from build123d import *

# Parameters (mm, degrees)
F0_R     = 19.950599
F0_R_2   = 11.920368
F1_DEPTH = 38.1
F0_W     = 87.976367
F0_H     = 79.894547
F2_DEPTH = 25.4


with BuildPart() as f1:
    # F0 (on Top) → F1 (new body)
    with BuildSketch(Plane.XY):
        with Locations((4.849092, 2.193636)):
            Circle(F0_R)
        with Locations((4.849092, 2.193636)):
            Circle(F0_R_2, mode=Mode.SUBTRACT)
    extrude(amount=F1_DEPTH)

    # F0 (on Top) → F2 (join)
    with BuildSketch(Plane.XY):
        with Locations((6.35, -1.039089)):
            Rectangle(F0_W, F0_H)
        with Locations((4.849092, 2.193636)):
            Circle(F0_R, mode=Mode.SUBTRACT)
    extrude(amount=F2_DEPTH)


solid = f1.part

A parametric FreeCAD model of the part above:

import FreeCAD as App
import Part
import Sketcher
from FreeCAD import Vector
Q = App.Units.Quantity


def add_polygon(sketch, points):
    """Adds a closed chain of lines whose ends are joined by coincident constraints."""
    first, n = sketch.GeometryCount, len(points)
    for a, b in zip(points, points[1:] + points[:1]):
        sketch.addGeometry(Part.LineSegment(App.Vector(*a, 0), App.Vector(*b, 0)), False)
    for i in range(n):
        sketch.addConstraint(Sketcher.Constraint("Coincident", first + i, 2, first + (i + 1) % n, 1))

doc = App.newDocument("Part")
body = doc.addObject("PartDesign::Body", "Body")

sketch1 = body.newObject("Sketcher::SketchObject", "Sketch")
sketch1.AttachmentSupport = (doc.getObject("XY_Plane"), [""])
sketch1.MapMode = "FlatFace"
sketch1.addGeometry(Part.Circle(Vector(5, 2, 0), Vector(0, 0, 1), 20), False)
sketch1.addGeometry(Part.Circle(Vector(5, 2, 0), Vector(0, 0, 1), 12), False)
sketch1.addConstraint(Sketcher.Constraint("Coincident", 1, 3, 0, 3))
sketch1.addConstraint(Sketcher.Constraint("Diameter", 0, Q("39.901198 mm")))
sketch1.addConstraint(Sketcher.Constraint("Diameter", 1, Q("23.840736 mm")))
sketch1.addConstraint(Sketcher.Constraint("DistanceX", -1, 1, 0, 3, Q("4.849092 mm")))
sketch1.addConstraint(Sketcher.Constraint("DistanceY", -1, 1, 0, 3, Q("2.193636 mm")))
pad1 = body.newObject("PartDesign::Pad", "Pad")
pad1.Profile = sketch1
pad1.Length = Q("1.5 in")

sketch2 = body.newObject("Sketcher::SketchObject", "Sketch001")
sketch2.AttachmentSupport = (doc.getObject("XY_Plane"), [""])
sketch2.MapMode = "FlatFace"
add_polygon(sketch2, [(-38, 39), (-38, -41), (50, -41), (50, 39)])
sketch2.addGeometry(Part.Circle(Vector(5, 2, 0), Vector(0, 0, 1), 20), False)
sketch2.addConstraint(Sketcher.Constraint("Vertical", 0))
sketch2.addConstraint(Sketcher.Constraint("Horizontal", 1))
sketch2.addConstraint(Sketcher.Constraint("Vertical", 2))
sketch2.addConstraint(Sketcher.Constraint("Horizontal", 3))
sketch2.addConstraint(Sketcher.Constraint("DistanceY", 0, 2, 4, 3, Q("1.6999999 in")))
sketch2.addConstraint(Sketcher.Constraint("Diameter", 4, Q("39.901198 mm")))
sketch2.addConstraint(Sketcher.Constraint("DistanceX", 1, 1, 1, 2, Q("87.976367 mm")))
sketch2.addConstraint(Sketcher.Constraint("DistanceY", 0, 2, 0, 1, Q("79.894547 mm")))
sketch2.addConstraint(Sketcher.Constraint("DistanceX", -1, 1, 4, 3, Q("4.849092 mm")))
sketch2.addConstraint(Sketcher.Constraint("DistanceX", 4, 3, 1, 2, Q("45.489092 mm")))
sketch2.addConstraint(Sketcher.Constraint("DistanceY", -1, 1, 4, 3, Q("2.193636 mm")))
pad2 = body.newObject("PartDesign::Pad", "Pad001")
pad2.Profile = sketch2
pad2.Length = Q("1 in")

doc.recompute()
